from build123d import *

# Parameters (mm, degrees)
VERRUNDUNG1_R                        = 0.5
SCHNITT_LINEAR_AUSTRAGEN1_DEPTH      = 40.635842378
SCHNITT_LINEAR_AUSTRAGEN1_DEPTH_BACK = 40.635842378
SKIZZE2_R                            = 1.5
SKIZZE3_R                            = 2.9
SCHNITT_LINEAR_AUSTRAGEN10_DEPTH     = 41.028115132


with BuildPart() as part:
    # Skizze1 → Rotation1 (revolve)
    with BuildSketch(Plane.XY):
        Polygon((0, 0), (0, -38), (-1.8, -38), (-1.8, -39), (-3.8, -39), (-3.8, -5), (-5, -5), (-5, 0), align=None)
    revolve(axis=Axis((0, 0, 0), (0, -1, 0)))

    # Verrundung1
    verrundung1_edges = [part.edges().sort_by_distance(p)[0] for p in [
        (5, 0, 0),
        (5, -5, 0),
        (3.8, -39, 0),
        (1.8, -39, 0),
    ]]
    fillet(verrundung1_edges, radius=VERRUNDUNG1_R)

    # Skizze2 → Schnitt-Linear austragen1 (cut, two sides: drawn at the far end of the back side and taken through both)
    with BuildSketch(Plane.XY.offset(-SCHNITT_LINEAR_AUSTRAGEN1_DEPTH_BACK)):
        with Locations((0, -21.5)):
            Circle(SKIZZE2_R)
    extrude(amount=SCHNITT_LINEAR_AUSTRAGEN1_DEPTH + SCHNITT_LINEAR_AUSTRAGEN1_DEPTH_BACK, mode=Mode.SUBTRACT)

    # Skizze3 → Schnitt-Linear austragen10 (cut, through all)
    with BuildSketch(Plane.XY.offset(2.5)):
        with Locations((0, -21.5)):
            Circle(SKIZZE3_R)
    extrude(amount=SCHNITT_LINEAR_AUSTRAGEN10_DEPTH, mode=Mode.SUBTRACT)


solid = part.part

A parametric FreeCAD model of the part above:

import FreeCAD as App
import Part
import Sketcher


def edges_at(feature, points):
    """Names of the edges that pass closest to the given points."""
    edges = feature.Shape.Edges
    near = lambda p: min(range(len(edges)), key=lambda i: edges[i].distToShape(Part.Vertex(*p))[0])
    return sorted({f"Edge{near(p) + 1}" for p in points})

doc = App.newDocument("Part")
body = doc.addObject("PartDesign::Body", "Body")

# Sketch on XY plane
sketch1 = body.newObject("Sketcher::SketchObject", "Sketch")
sketch1.AttachmentSupport = (doc.getObject("XY_Plane"), [""])
sketch1.MapMode = "FlatFace"
sketch1.addGeometry([
    Part.LineSegment(App.Vector(0, -38, 0), App.Vector(0, 0, 0)),  # 0
    Part.LineSegment(App.Vector(0, 0, 0), App.Vector(-5, 0, 0)),  # 1
    Part.LineSegment(App.Vector(-5, 0, 0), App.Vector(-5, -5, 0)),  # 2
    Part.LineSegment(App.Vector(-5, -5, 0), App.Vector(-3.8, -5, 0)),  # 3
    Part.LineSegment(App.Vector(-3.8, -5, 0), App.Vector(-3.8, -39, 0)),  # 4
    Part.LineSegment(App.Vector(-3.8, -39, 0), App.Vector(-1.8, -39, 0)),  # 5
    Part.LineSegment(App.Vector(-1.8, -39, 0), App.Vector(-1.8, -38, 0)),  # 6
    Part.LineSegment(App.Vector(-1.8, -38, 0), App.Vector(0, -38, 0)),  # 7
], False)
sketch1.addConstraint([
    Sketcher.Constraint("Coincident", 0, 2, 1, 1),
    Sketcher.Constraint("Coincident", 1, 2, 2, 1),
    Sketcher.Constraint("Coincident", 2, 2, 3, 1),
    Sketcher.Constraint("Coincident", 3, 2, 4, 1),
    Sketcher.Constraint("Coincident", 4, 2, 5, 1),
    Sketcher.Constraint("Coincident", 5, 2, 6, 1),
    Sketcher.Constraint("Coincident", 6, 2, 7, 1),
    Sketcher.Constraint("Coincident", 7, 2, 0, 1),
    Sketcher.Constraint("Vertical", 0),
    Sketcher.Constraint("Horizontal", 1),
    Sketcher.Constraint("Vertical", 2),
    Sketcher.Constraint("Horizontal", 3),
    Sketcher.Constraint("Vertical", 4),
    Sketcher.Constraint("Horizontal", 5),
    Sketcher.Constraint("Vertical", 6),
    Sketcher.Constraint("Horizontal", 7),
    Sketcher.Constraint("Coincident", 0, 2, -1, 1),
    Sketcher.Constraint("Equal", 1, 2),
    Sketcher.Constraint("DistanceX", 1, 2, 1, 1, 5.0),
    Sketcher.Constraint("DistanceX", 5, 1, 5, 2, 2.0),
    Sketcher.Constraint("DistanceY", 0, 1, 0, 2, 38.0),
    Sketcher.Constraint("DistanceY", 4, 2, 4, 1, 34.0),
    Sketcher.Constraint("DistanceX", 3, 1, 3, 2, 1.2),
])
revolution = body.newObject("PartDesign::Revolution", "Revolution")
revolution.Profile = sketch1
revolution.ReferenceAxis = (sketch1, ["V_Axis"])
revolution.Angle = 360
doc.recompute()

fillet = body.newObject("PartDesign::Fillet", "Fillet")
fillet.Base = (revolution, edges_at(revolution, [
    (5, 0, 0),
    (5, -5, 0),
    (3.8, -39, 0),
    (1.8, -39, 0),
]))
fillet.Radius = 0.5

# Sketch on XY plane
sketch2 = body.newObject("Sketcher::SketchObject", "Sketch001")
sketch2.AttachmentSupport = (doc.getObject("XY_Plane"), [""])
sketch2.MapMode = "FlatFace"
sketch2.addGeometry(Part.Circle(App.Vector(0, -21.5, 0), App.Vector(0, 0, 1), 1.5), False)
sketch2.addConstraint([
    Sketcher.Constraint("PointOnObject", 0, 3, -2),
    Sketcher.Constraint("Diameter", 0, 3.0),
    Sketcher.Constraint("DistanceY", 0, 3, -1, 1, 21.5),
])
pocket1 = body.newObject("PartDesign::Pocket", "Pocket")
pocket1.Profile = sketch2
pocket1.Type = "ThroughAll"
pocket1.Midplane = True

# Sketch on XY plane
sketch3 = body.newObject("Sketcher::SketchObject", "Sketch002")
sketch3.AttachmentSupport = (doc.getObject("XY_Plane"), [""])
sketch3.MapMode = "FlatFace"
sketch3.AttachmentOffset = App.Placement(App.Vector(0, 0, 2.5), App.Rotation())
sketch3.addGeometry(Part.Circle(App.Vector(0, -21.5, 0), App.Vector(0, 0, 1), 2.9), False)
sketch3.addConstraint([
    Sketcher.Constraint("PointOnObject", 0, 3, -2),
    Sketcher.Constraint("Diameter", 0, 5.8),
    Sketcher.Constraint("DistanceY", 0, 3, -1, 1, 21.5),
])
pocket2 = body.newObject("PartDesign::Pocket", "Pocket001")
pocket2.Profile = sketch3
pocket2.Type = "ThroughAll"
pocket2.Reversed = True

doc.recompute()
